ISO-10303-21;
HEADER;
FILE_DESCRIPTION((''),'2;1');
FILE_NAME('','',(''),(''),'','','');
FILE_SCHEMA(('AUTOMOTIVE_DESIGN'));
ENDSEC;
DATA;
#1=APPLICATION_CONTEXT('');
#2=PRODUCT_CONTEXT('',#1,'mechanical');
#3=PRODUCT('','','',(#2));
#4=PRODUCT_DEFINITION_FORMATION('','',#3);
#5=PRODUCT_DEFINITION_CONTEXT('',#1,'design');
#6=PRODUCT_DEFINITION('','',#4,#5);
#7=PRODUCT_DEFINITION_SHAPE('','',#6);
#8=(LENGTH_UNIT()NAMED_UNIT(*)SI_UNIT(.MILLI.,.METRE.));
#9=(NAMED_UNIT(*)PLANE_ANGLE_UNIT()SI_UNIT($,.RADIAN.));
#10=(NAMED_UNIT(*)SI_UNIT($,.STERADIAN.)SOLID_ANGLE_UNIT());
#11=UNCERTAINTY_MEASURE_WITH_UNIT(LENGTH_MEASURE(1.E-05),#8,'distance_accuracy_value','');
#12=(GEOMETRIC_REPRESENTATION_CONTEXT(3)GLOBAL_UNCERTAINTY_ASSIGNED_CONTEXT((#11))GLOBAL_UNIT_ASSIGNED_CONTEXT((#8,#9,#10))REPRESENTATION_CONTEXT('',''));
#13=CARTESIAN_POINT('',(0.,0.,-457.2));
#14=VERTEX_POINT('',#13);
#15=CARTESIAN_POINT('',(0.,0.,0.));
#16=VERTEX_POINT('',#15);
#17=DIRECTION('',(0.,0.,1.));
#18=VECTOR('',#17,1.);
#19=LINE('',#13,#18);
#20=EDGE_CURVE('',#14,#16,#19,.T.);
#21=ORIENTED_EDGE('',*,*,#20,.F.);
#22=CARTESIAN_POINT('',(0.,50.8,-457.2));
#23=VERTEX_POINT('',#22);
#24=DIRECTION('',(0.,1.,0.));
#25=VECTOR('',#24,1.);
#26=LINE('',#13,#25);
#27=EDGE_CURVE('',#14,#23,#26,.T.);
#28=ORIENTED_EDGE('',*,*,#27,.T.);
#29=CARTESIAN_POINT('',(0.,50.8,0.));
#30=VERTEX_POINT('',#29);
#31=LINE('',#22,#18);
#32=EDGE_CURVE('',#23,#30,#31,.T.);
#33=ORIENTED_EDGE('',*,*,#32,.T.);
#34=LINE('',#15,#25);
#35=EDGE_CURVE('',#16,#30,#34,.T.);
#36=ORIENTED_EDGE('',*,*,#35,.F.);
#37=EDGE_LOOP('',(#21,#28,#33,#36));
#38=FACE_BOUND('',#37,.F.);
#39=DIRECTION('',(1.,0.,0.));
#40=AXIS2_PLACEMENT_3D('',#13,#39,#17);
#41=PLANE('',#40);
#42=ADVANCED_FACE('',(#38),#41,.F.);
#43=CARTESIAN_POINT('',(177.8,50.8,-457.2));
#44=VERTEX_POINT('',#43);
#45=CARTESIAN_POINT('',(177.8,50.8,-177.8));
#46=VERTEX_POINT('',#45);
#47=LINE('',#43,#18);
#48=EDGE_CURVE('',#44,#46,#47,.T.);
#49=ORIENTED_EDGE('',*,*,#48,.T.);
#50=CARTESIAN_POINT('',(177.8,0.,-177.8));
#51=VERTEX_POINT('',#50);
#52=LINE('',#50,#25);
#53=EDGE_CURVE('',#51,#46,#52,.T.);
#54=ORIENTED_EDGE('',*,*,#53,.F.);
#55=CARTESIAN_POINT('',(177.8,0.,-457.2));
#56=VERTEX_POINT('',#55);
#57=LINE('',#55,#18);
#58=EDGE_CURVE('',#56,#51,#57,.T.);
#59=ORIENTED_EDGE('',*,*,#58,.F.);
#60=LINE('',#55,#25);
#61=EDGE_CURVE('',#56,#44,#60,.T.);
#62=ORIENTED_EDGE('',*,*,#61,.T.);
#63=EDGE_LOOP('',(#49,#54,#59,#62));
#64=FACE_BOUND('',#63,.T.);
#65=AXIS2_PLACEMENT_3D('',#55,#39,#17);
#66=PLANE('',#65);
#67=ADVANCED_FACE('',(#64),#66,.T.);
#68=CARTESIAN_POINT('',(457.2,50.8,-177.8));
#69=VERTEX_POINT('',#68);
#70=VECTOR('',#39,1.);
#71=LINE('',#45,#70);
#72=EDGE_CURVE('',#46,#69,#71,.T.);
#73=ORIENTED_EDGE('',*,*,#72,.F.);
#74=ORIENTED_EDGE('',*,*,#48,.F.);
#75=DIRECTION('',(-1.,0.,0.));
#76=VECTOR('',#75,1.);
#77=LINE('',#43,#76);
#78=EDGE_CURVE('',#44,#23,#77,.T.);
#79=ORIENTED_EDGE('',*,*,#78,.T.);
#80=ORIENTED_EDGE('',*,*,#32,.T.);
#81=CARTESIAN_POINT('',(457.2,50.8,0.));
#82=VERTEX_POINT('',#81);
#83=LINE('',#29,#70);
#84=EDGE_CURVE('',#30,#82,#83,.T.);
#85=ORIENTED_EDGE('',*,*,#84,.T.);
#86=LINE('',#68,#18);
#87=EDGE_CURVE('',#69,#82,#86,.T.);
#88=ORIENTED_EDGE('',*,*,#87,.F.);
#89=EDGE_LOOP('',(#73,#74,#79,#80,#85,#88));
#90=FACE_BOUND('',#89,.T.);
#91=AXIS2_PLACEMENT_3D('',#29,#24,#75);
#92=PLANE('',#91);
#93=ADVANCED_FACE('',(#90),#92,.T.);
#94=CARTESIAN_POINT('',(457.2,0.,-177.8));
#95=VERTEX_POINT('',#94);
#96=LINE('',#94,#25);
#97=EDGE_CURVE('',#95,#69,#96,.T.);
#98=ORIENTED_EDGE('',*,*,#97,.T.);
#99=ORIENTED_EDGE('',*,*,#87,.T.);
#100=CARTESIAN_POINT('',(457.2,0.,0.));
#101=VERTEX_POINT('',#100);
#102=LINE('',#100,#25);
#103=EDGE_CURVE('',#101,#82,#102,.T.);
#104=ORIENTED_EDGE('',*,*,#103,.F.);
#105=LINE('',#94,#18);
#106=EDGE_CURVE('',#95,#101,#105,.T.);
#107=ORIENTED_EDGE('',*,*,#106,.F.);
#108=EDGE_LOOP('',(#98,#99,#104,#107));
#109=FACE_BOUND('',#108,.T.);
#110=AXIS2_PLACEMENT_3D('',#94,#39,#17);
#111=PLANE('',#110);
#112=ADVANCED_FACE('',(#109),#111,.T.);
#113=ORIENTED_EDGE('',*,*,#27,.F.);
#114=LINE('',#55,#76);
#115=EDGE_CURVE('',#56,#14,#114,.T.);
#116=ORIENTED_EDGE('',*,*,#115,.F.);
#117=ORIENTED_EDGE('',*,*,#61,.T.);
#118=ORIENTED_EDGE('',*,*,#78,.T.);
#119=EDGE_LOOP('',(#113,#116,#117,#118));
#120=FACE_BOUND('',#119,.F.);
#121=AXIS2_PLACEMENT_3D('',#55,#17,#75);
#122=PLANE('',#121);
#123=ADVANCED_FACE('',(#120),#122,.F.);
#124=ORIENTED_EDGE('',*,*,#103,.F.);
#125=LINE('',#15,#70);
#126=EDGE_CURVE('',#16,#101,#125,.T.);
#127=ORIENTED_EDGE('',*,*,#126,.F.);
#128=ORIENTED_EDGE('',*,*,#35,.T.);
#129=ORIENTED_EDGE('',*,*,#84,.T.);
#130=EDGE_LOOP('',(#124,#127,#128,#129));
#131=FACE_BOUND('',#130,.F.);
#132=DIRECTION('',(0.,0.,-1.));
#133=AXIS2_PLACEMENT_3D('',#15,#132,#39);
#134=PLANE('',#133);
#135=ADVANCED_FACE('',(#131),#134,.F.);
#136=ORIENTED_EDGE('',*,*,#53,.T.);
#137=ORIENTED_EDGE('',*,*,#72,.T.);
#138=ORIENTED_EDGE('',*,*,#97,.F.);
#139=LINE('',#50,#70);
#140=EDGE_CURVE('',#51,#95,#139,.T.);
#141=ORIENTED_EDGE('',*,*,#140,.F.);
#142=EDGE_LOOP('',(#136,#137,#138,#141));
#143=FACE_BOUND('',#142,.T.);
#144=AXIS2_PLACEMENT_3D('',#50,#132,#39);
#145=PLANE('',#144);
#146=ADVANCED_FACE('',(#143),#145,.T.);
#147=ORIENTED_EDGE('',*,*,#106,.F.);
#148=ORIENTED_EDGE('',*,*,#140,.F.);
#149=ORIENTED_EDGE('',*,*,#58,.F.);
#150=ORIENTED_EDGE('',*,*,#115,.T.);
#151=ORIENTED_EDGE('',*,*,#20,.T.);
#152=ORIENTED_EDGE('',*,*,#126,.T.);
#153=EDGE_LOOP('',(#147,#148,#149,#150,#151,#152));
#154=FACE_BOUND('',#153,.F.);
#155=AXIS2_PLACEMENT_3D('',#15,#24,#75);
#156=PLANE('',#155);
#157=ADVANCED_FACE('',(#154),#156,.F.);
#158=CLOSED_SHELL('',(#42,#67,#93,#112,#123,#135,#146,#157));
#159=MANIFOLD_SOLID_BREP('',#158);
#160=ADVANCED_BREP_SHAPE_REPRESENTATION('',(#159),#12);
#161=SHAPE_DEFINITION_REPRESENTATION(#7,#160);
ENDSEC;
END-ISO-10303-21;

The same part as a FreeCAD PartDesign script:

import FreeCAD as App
import Part
import Sketcher

V = App.Vector
Q = App.Units.Quantity


def add_polygon(sketch, points):
    """Adds a closed chain of lines whose ends are joined by coincident constraints."""
    first, n = sketch.GeometryCount, len(points)
    for a, b in zip(points, points[1:] + points[:1]):
        sketch.addGeometry(Part.LineSegment(App.Vector(*a, 0), App.Vector(*b, 0)), False)
    for i in range(n):
        sketch.addConstraint(Sketcher.Constraint("Coincident", first + i, 2, first + (i + 1) % n, 1))

doc = App.newDocument("Part")
body = doc.addObject("PartDesign::Body", "Body")

sketch1 = body.newObject("Sketcher::SketchObject", "Sketch")
sketch1.AttachmentSupport = (doc.getObject("XZ_Plane"), [""])
sketch1.MapMode = "FlatFace"
add_polygon(sketch1, [(178, -457), (0, -457), (0, 0), (457, 0), (457, -178), (178, -178)])
sketch1.addConstraint(Sketcher.Constraint("Horizontal", 0))
sketch1.addConstraint(Sketcher.Constraint("Vertical", 1))
sketch1.addConstraint(Sketcher.Constraint("Horizontal", 2))
sketch1.addConstraint(Sketcher.Constraint("Vertical", 3))
sketch1.addConstraint(Sketcher.Constraint("Horizontal", 4))
sketch1.addConstraint(Sketcher.Constraint("Vertical", 5))
sketch1.addConstraint(Sketcher.Constraint("Coincident", 1, 2, -1, 1))
sketch1.addConstraint(Sketcher.Constraint("Equal", 2, 1))
sketch1.addConstraint(Sketcher.Constraint("Equal", 0, 3))
sketch1.addConstraint(Sketcher.Constraint("DistanceX", 0, 2, 0, 1, Q("7 in")))
sketch1.addConstraint(Sketcher.Constraint("DistanceX", 2, 1, 2, 2, Q("18 in")))
pad1 = body.newObject("PartDesign::Pad", "Pad")
pad1.Profile = sketch1
pad1.Length = Q("2 in")
pad1.Reversed = True

doc.recompute()
